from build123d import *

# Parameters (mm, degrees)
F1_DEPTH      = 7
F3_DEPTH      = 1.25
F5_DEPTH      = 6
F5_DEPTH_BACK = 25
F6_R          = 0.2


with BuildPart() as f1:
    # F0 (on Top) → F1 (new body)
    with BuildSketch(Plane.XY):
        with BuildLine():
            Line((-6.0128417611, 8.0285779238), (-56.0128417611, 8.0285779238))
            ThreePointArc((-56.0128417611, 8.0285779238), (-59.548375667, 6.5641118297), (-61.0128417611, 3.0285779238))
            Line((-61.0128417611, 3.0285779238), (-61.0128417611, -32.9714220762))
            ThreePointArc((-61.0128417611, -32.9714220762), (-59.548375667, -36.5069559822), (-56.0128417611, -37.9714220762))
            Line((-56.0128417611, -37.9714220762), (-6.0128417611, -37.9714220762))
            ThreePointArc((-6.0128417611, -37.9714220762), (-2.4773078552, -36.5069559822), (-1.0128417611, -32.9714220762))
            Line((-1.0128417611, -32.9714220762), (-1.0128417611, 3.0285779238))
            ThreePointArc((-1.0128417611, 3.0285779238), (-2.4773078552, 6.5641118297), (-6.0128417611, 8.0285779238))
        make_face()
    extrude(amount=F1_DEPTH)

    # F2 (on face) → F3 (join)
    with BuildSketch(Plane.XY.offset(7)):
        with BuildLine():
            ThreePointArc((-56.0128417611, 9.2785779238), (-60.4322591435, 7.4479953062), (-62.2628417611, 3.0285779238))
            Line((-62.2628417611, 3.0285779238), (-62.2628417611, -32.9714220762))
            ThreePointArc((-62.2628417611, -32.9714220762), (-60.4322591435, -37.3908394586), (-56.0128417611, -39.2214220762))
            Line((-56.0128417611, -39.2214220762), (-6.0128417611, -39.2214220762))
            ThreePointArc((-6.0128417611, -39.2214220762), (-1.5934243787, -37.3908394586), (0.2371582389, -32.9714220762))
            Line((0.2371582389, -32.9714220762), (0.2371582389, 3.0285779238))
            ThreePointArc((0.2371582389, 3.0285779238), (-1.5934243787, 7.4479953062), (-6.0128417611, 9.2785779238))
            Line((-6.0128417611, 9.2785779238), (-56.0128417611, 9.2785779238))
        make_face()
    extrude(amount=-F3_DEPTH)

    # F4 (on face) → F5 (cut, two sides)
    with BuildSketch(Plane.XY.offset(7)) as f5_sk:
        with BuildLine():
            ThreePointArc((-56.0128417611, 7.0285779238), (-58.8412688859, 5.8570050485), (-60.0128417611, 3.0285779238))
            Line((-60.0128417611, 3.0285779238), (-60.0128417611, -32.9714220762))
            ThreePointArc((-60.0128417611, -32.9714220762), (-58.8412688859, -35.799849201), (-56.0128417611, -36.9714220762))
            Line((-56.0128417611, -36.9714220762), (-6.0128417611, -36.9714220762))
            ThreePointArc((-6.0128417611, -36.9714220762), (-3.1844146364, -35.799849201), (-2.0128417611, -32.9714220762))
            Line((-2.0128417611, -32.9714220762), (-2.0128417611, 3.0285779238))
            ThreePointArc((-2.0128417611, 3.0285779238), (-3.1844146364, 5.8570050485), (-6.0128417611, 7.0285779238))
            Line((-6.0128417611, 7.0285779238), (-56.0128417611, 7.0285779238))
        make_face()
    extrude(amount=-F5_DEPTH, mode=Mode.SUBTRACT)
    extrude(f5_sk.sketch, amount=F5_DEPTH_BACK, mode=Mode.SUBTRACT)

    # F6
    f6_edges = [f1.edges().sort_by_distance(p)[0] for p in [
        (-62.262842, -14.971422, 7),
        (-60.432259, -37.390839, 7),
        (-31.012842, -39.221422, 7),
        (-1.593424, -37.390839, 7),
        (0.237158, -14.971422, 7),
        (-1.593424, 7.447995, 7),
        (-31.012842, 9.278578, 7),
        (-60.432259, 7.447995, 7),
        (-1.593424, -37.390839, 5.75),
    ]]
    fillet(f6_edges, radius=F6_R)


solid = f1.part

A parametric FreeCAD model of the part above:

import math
import FreeCAD as App
import Part
import Sketcher
from FreeCAD import Vector
Q = App.Units.Quantity


def edges_at(feature, points):
    """Names of the edges that pass closest to the given points."""
    edges = feature.Shape.Edges
    near = lambda p: min(range(len(edges)), key=lambda i: edges[i].distToShape(Part.Vertex(*p))[0])
    return sorted({f"Edge{near(p) + 1}" for p in points})

doc = App.newDocument("Part")
body = doc.addObject("PartDesign::Body", "Body")

sketch1 = doc.addObject("Sketcher::SketchObject", "Sketch")
body.addObject(sketch1)
sketch1.AttachmentSupport = (doc.XY_Plane, [""])
sketch1.MapMode = "FlatFace"
sketch1.addGeometry([
    Part.LineSegment(Vector(-6.012842, 8.028578, 0), Vector(-56.012842, 8.028578, 0)),
    Part.ArcOfCircle(Part.Circle(Vector(-56.012842, 3.028578, 0), Vector(0, 0, 1), 5), math.radians(90), math.radians(180)),
    Part.LineSegment(Vector(-61.012842, 3.028578, 0), Vector(-61.012842, -32.971422, 0)),
    Part.ArcOfCircle(Part.Circle(Vector(-56.012842, -32.971422, 0), Vector(0, 0, 1), 5), math.radians(180), math.radians(270)),
    Part.LineSegment(Vector(-56.012842, -37.971422, 0), Vector(-6.012842, -37.971422, 0)),
    Part.ArcOfCircle(Part.Circle(Vector(-6.012842, -32.971422, 0), Vector(0, 0, 1), 5), math.radians(-90), math.radians(0)),
    Part.LineSegment(Vector(-1.012842, -32.971422, 0), Vector(-1.012842, 3.028578, 0)),
    Part.ArcOfCircle(Part.Circle(Vector(-6.012842, 3.028578, 0), Vector(0, 0, 1), 5), math.radians(0), math.radians(90)),
], False)
sketch1.addConstraint([
    Sketcher.Constraint("Tangent", 0, 2, 1, 1),
    Sketcher.Constraint("Tangent", 1, 2, 2, 1),
    Sketcher.Constraint("Tangent", 2, 2, 3, 1),
    Sketcher.Constraint("Tangent", 3, 2, 4, 1),
    Sketcher.Constraint("Tangent", 4, 2, 5, 1),
    Sketcher.Constraint("Tangent", 5, 2, 6, 1),
    Sketcher.Constraint("Tangent", 6, 2, 7, 1),
    Sketcher.Constraint("Tangent", 7, 2, 0, 1),
    Sketcher.Constraint("Horizontal", 0),
    Sketcher.Constraint("Vertical", 2),
    Sketcher.Constraint("Horizontal", 4),
    Sketcher.Constraint("Vertical", 6),
    Sketcher.Constraint("Equal", 1, 3),
    Sketcher.Constraint("Equal", 3, 5),
    Sketcher.Constraint("Equal", 5, 7),
    Sketcher.Constraint("Radius", 1, Q("5 mm")),
    Sketcher.Constraint("DistanceX", 0, 2, 0, 1, Q("50 mm")),
    Sketcher.Constraint("DistanceY", 2, 2, 2, 1, Q("36 mm")),
    Sketcher.Constraint("DistanceX", 1, 3, -1, 1, Q("56.012842 mm")),
    Sketcher.Constraint("DistanceY", -1, 1, 1, 3, Q("3.028578 mm")),
])
pad1 = doc.addObject("PartDesign::Pad", "Pad")
body.addObject(pad1)
pad1.Profile = sketch1
pad1.Length = 7

sketch2 = doc.addObject("Sketcher::SketchObject", "Sketch001")
body.addObject(sketch2)
sketch2.AttachmentSupport = (doc.XY_Plane, [""])
sketch2.MapMode = "FlatFace"
sketch2.AttachmentOffset = App.Placement(Vector(0, 0, 7), App.Rotation())
sketch2.addGeometry([
    Part.ArcOfCircle(Part.Circle(Vector(-56.012842, 3.028578, 0), Vector(0, 0, 1), 6.25), math.radians(90), math.radians(180)),
    Part.LineSegment(Vector(-62.262842, 3.028578, 0), Vector(-62.262842, -32.971422, 0)),
    Part.ArcOfCircle(Part.Circle(Vector(-56.012842, -32.971422, 0), Vector(0, 0, 1), 6.25), math.radians(180), math.radians(270)),
    Part.LineSegment(Vector(-56.012842, -39.221422, 0), Vector(-6.012842, -39.221422, 0)),
    Part.ArcOfCircle(Part.Circle(Vector(-6.012842, -32.971422, 0), Vector(0, 0, 1), 6.25), math.radians(-90), math.radians(0)),
    Part.LineSegment(Vector(0.237158, -32.971422, 0), Vector(0.237158, 3.028578, 0)),
    Part.ArcOfCircle(Part.Circle(Vector(-6.012842, 3.028578, 0), Vector(0, 0, 1), 6.25), math.radians(0), math.radians(90)),
    Part.LineSegment(Vector(-6.012842, 9.278578, 0), Vector(-56.012842, 9.278578, 0)),
], False)
sketch2.addConstraint([
    Sketcher.Constraint("Tangent", 0, 2, 1, 1),
    Sketcher.Constraint("Tangent", 1, 2, 2, 1),
    Sketcher.Constraint("Tangent", 2, 2, 3, 1),
    Sketcher.Constraint("Tangent", 3, 2, 4, 1),
    Sketcher.Constraint("Tangent", 4, 2, 5, 1),
    Sketcher.Constraint("Tangent", 5, 2, 6, 1),
    Sketcher.Constraint("Tangent", 6, 2, 7, 1),
    Sketcher.Constraint("Tangent", 7, 2, 0, 1),
    Sketcher.Constraint("Vertical", 1),
    Sketcher.Constraint("Horizontal", 3),
    Sketcher.Constraint("Vertical", 5),
    Sketcher.Constraint("Horizontal", 7),
    Sketcher.Constraint("Equal", 0, 2),
    Sketcher.Constraint("Equal", 2, 4),
    Sketcher.Constraint("Equal", 4, 6),
    Sketcher.Constraint("DistanceX", 3, 1, 3, 2, Q("50 mm")),
    Sketcher.Constraint("DistanceY", 1, 2, 1, 1, Q("36 mm")),
    Sketcher.Constraint("Radius", 0, Q("6.25 mm")),
    Sketcher.Constraint("DistanceX", 0, 3, -1, 1, Q("56.012842 mm")),
    Sketcher.Constraint("DistanceY", -1, 1, 0, 3, Q("3.028578 mm")),
])
pad2 = doc.addObject("PartDesign::Pad", "Pad001")
body.addObject(pad2)
pad2.Profile = sketch2
pad2.Length = 1.25
pad2.Reversed = True

sketch3 = doc.addObject("Sketcher::SketchObject", "Sketch002")
body.addObject(sketch3)
sketch3.AttachmentSupport = (doc.XY_Plane, [""])
sketch3.MapMode = "FlatFace"
sketch3.AttachmentOffset = App.Placement(Vector(0, 0, 7), App.Rotation())
sketch3.addGeometry([
    Part.ArcOfCircle(Part.Circle(Vector(-56.012842, 3.028578, 0), Vector(0, 0, 1), 4), math.radians(90), math.radians(180)),
    Part.LineSegment(Vector(-60.012842, 3.028578, 0), Vector(-60.012842, -32.971422, 0)),
    Part.ArcOfCircle(Part.Circle(Vector(-56.012842, -32.971422, 0), Vector(0, 0, 1), 4), math.radians(180), math.radians(270)),
    Part.LineSegment(Vector(-56.012842, -36.971422, 0), Vector(-6.012842, -36.971422, 0)),
    Part.ArcOfCircle(Part.Circle(Vector(-6.012842, -32.971422, 0), Vector(0, 0, 1), 4), math.radians(-90), math.radians(0)),
    Part.LineSegment(Vector(-2.012842, -32.971422, 0), Vector(-2.012842, 3.028578, 0)),
    Part.ArcOfCircle(Part.Circle(Vector(-6.012842, 3.028578, 0), Vector(0, 0, 1), 4), math.radians(0), math.radians(90)),
    Part.LineSegment(Vector(-6.012842, 7.028578, 0), Vector(-56.012842, 7.028578, 0)),
], False)
sketch3.addConstraint([
    Sketcher.Constraint("Tangent", 0, 2, 1, 1),
    Sketcher.Constraint("Tangent", 1, 2, 2, 1),
    Sketcher.Constraint("Tangent", 2, 2, 3, 1),
    Sketcher.Constraint("Tangent", 3, 2, 4, 1),
    Sketcher.Constraint("Tangent", 4, 2, 5, 1),
    Sketcher.Constraint("Tangent", 5, 2, 6, 1),
    Sketcher.Constraint("Tangent", 6, 2, 7, 1),
    Sketcher.Constraint("Tangent", 7, 2, 0, 1),
    Sketcher.Constraint("Vertical", 1),
    Sketcher.Constraint("Horizontal", 3),
    Sketcher.Constraint("Vertical", 5),
    Sketcher.Constraint("Horizontal", 7),
    Sketcher.Constraint("Equal", 0, 2),
    Sketcher.Constraint("Equal", 2, 4),
    Sketcher.Constraint("Equal", 4, 6),
    Sketcher.Constraint("Radius", 0, Q("4 mm")),
    Sketcher.Constraint("DistanceX", 3, 1, 3, 2, Q("50 mm")),
    Sketcher.Constraint("DistanceY", 1, 2, 1, 1, Q("36 mm")),
    Sketcher.Constraint("DistanceX", 0, 3, -1, 1, Q("56.012842 mm")),
    Sketcher.Constraint("DistanceY", -1, 1, 0, 3, Q("3.028578 mm")),
])
pocket1 = doc.addObject("PartDesign::Pocket", "Pocket")
body.addObject(pocket1)
pocket1.Profile = sketch3
pocket1.Type = "TwoLengths"
pocket1.Length = 6
pocket1.Length2 = 25
doc.recompute()

fillet = doc.addObject("PartDesign::Fillet", "Fillet")
body.addObject(fillet)
fillet.Base = (pocket1, edges_at(pocket1, [
    (-62.263, -14.971, 7),
    (-60.432, -37.391, 7),
    (-31.013, -39.221, 7),
    (-1.593, -37.391, 7),
    (0.237, -14.971, 7),
    (-1.593, 7.448, 7),
    (-31.013, 9.279, 7),
    (-60.432, 7.448, 7),
    (-1.593, -37.391, 5.75),
]))
fillet.Radius = 0.2

doc.recompute()
